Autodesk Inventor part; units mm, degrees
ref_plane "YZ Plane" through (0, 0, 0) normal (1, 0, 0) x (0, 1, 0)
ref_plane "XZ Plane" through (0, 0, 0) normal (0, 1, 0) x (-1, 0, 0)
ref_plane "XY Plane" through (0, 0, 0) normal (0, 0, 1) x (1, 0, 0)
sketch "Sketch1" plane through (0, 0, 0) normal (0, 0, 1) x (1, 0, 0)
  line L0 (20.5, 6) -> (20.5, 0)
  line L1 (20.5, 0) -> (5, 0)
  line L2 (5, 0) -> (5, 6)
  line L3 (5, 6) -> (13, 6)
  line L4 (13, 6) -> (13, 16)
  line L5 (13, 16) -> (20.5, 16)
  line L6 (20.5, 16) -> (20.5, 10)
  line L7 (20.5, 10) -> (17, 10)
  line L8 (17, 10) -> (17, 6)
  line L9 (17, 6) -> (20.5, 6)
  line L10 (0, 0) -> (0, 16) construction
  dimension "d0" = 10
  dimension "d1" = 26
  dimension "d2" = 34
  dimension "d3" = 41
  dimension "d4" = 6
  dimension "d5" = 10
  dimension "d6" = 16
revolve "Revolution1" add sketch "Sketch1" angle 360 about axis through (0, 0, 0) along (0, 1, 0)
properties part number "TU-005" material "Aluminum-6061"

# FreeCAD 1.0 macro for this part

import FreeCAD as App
import Part
import Sketcher

V = App.Vector


def add_polygon(sketch, points):
    """Adds a closed chain of lines whose ends are joined by coincident constraints."""
    first, n = sketch.GeometryCount, len(points)
    for a, b in zip(points, points[1:] + points[:1]):
        sketch.addGeometry(Part.LineSegment(App.Vector(*a, 0), App.Vector(*b, 0)), False)
    for i in range(n):
        sketch.addConstraint(Sketcher.Constraint("Coincident", first + i, 2, first + (i + 1) % n, 1))

doc = App.newDocument("Part")
body = doc.addObject("PartDesign::Body", "Body")

# Sketch on XY plane
sketch1 = body.newObject("Sketcher::SketchObject", "Sketch")
sketch1.AttachmentSupport = (doc.getObject("XY_Plane"), [""])
sketch1.MapMode = "FlatFace"
add_polygon(sketch1, [(20.5, 0), (20.5, 6), (17, 6), (17, 10), (20.5, 10), (20.5, 16), (13, 16), (13, 6), (5, 6), (5, 0)])  # lines 0-9
sketch1.addConstraint([
    Sketcher.Constraint("Vertical", 0),
    Sketcher.Constraint("Horizontal", 1),
    Sketcher.Constraint("Vertical", 2),
    Sketcher.Constraint("Horizontal", 3),
    Sketcher.Constraint("Vertical", 4),
    Sketcher.Constraint("Horizontal", 5),
    Sketcher.Constraint("Vertical", 6),
    Sketcher.Constraint("Horizontal", 7),
    Sketcher.Constraint("Vertical", 8),
    Sketcher.Constraint("Horizontal", 9),
    Sketcher.Constraint("PointOnObject", 8, 2, -1),
    Sketcher.Constraint("Horizontal", 1, 2, 6, 2),
    Sketcher.Constraint("Vertical", 0, 2, 3, 2),
    Sketcher.Constraint("Equal", 0, 4),
    Sketcher.Constraint("DistanceY", 0, 1, 0, 2, 6.0),
    Sketcher.Constraint("DistanceY", 6, 2, 6, 1, 10.0),
    Sketcher.Constraint("DistanceX", 7, 2, 7, 1, 8.0),
    Sketcher.Constraint("DistanceX", 1, 2, 1, 1, 3.5),
    Sketcher.Constraint("DistanceX", 5, 2, 5, 1, 7.5),
    Sketcher.Constraint("DistanceX", -1, 1, 1, 2, 17.0),
])
revolution = body.newObject("PartDesign::Revolution", "Revolution")
revolution.Profile = sketch1
revolution.ReferenceAxis = (sketch1, ["V_Axis"])
revolution.Angle = 360

doc.recompute()
